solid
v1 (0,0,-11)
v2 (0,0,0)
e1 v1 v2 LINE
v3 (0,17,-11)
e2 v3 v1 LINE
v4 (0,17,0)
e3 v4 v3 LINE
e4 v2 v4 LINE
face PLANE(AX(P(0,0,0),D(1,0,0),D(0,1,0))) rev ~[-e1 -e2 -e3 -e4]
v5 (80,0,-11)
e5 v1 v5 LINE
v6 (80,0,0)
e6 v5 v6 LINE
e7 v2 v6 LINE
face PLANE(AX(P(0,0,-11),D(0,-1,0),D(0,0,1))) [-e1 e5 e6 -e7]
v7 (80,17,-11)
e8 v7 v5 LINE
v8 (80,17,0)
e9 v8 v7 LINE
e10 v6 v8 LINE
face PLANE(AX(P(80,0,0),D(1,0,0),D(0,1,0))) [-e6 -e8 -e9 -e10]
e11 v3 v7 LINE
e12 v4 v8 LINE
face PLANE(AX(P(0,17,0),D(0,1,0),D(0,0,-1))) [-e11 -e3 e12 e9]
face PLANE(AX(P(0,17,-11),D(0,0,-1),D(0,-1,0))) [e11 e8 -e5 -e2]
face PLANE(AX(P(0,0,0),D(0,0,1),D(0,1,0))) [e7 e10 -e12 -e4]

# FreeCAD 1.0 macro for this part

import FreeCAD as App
import Part
import Sketcher
from FreeCAD import Vector
Q = App.Units.Quantity


def add_polygon(sketch, points):
    """Adds a closed chain of lines whose ends are joined by coincident constraints."""
    first, n = sketch.GeometryCount, len(points)
    for a, b in zip(points, points[1:] + points[:1]):
        sketch.addGeometry(Part.LineSegment(App.Vector(*a, 0), App.Vector(*b, 0)), False)
    for i in range(n):
        sketch.addConstraint(Sketcher.Constraint("Coincident", first + i, 2, first + (i + 1) % n, 1))

doc = App.newDocument("Part")
body = doc.addObject("PartDesign::Body", "Body")

# Sketch on YZ plane
sketch1 = body.newObject("Sketcher::SketchObject", "Sketch")
sketch1.AttachmentSupport = (doc.getObject("YZ_Plane"), [""])
sketch1.MapMode = "FlatFace"
add_polygon(sketch1, [(17, 0), (0, 0), (0, -11), (17, -11)])  # lines 0-3
sketch1.addConstraint(Sketcher.Constraint("Horizontal", 0))
sketch1.addConstraint(Sketcher.Constraint("Vertical", 1))
sketch1.addConstraint(Sketcher.Constraint("Horizontal", 2))
sketch1.addConstraint(Sketcher.Constraint("Vertical", 3))
sketch1.addConstraint(Sketcher.Constraint("Coincident", 0, 2, -1, 1))
sketch1.addConstraint(Sketcher.Constraint("DistanceX", 0, 2, 0, 1, Q("17 mm")))
sketch1.addConstraint(Sketcher.Constraint("DistanceY", 1, 2, 1, 1, Q("11 mm")))
pad1 = body.newObject("PartDesign::Pad", "Pad")
pad1.Profile = sketch1
pad1.Length = 80

doc.recompute()
